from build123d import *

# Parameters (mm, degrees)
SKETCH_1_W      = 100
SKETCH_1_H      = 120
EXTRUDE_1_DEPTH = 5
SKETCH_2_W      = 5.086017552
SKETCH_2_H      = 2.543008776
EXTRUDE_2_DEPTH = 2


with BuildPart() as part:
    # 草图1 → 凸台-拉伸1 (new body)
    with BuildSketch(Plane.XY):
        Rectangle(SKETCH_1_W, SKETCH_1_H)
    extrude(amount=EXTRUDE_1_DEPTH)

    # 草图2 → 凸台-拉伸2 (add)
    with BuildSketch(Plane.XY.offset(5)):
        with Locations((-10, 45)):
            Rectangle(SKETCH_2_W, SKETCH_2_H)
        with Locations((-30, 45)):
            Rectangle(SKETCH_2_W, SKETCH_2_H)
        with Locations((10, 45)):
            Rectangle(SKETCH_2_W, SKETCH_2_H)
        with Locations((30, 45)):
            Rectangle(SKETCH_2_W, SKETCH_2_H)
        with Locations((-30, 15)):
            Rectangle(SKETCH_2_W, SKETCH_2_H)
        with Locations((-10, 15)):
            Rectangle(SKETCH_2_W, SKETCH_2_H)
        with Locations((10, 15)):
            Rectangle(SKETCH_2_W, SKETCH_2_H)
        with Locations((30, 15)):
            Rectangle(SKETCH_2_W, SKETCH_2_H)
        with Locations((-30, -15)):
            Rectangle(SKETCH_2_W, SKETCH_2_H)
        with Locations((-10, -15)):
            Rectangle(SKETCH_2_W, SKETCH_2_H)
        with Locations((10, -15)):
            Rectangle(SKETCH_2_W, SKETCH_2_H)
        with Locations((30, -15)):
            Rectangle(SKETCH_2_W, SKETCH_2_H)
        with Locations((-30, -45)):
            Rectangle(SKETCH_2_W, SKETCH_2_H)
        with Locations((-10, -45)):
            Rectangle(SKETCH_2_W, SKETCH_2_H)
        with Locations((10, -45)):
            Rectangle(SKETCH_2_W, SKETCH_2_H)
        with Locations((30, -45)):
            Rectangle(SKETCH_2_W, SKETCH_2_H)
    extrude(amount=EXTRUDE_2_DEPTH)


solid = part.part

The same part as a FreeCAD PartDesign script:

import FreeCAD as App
import Part
import Sketcher
Q = App.Units.Quantity

doc = App.newDocument("Part")
body = doc.addObject("PartDesign::Body", "Body")

sketch1 = doc.addObject("Sketcher::SketchObject", "Sketch")
body.addObject(sketch1)
sketch1.AttachmentSupport = (doc.XY_Plane, [""])
sketch1.MapMode = "FlatFace"
sketch1.addGeometry([
    Part.LineSegment(App.Vector(-50, 60, 0), App.Vector(-50, -60, 0)),
    Part.LineSegment(App.Vector(-50, -60, 0), App.Vector(50, -60, 0)),
    Part.LineSegment(App.Vector(50, -60, 0), App.Vector(50, 60, 0)),
    Part.LineSegment(App.Vector(50, 60, 0), App.Vector(-50, 60, 0)),
], False)
sketch1.addConstraint([
    Sketcher.Constraint("Coincident", 0, 2, 1, 1),
    Sketcher.Constraint("Coincident", 1, 2, 2, 1),
    Sketcher.Constraint("Coincident", 2, 2, 3, 1),
    Sketcher.Constraint("Coincident", 3, 2, 0, 1),
    Sketcher.Constraint("Vertical", 0),
    Sketcher.Constraint("Horizontal", 1),
    Sketcher.Constraint("Vertical", 2),
    Sketcher.Constraint("Horizontal", 3),
    Sketcher.Constraint("Symmetric", 0, 2, 2, 2, -1, 1),
    Sketcher.Constraint("DistanceX", 1, 1, 1, 2, Q("100 mm")),
    Sketcher.Constraint("DistanceY", 0, 2, 0, 1, Q("120 mm")),
])
pad1 = doc.addObject("PartDesign::Pad", "Pad")
body.addObject(pad1)
pad1.Profile = sketch1
pad1.Length = 5

sketch2 = doc.addObject("Sketcher::SketchObject", "Sketch001")
body.addObject(sketch2)
sketch2.AttachmentSupport = (doc.XY_Plane, [""])
sketch2.MapMode = "FlatFace"
sketch2.AttachmentOffset = App.Placement(App.Vector(0, 0, 5), App.Rotation())
sketch2.addGeometry([
    Part.LineSegment(App.Vector(-12.5, 46.3, 0), App.Vector(-12.5, 43.7, 0)),
    Part.LineSegment(App.Vector(-12.5, 43.7, 0), App.Vector(-7.5, 43.7, 0)),
    Part.LineSegment(App.Vector(-7.5, 43.7, 0), App.Vector(-7.5, 46.3, 0)),
    Part.LineSegment(App.Vector(-7.5, 46.3, 0), App.Vector(-12.5, 46.3, 0)),
    Part.LineSegment(App.Vector(-32.5, 46.3, 0), App.Vector(-32.5, 43.7, 0)),
    Part.LineSegment(App.Vector(-32.5, 43.7, 0), App.Vector(-27.5, 43.7, 0)),
    Part.LineSegment(App.Vector(-27.5, 43.7, 0), App.Vector(-27.5, 46.3, 0)),
    Part.LineSegment(App.Vector(-27.5, 46.3, 0), App.Vector(-32.5, 46.3, 0)),
    Part.LineSegment(App.Vector(7.5, 46.3, 0), App.Vector(7.5, 43.7, 0)),
    Part.LineSegment(App.Vector(7.5, 43.7, 0), App.Vector(12.5, 43.7, 0)),
    Part.LineSegment(App.Vector(12.5, 43.7, 0), App.Vector(12.5, 46.3, 0)),
    Part.LineSegment(App.Vector(12.5, 46.3, 0), App.Vector(7.5, 46.3, 0)),
    Part.LineSegment(App.Vector(27.5, 46.3, 0), App.Vector(27.5, 43.7, 0)),
    Part.LineSegment(App.Vector(27.5, 43.7, 0), App.Vector(32.5, 43.7, 0)),
    Part.LineSegment(App.Vector(32.5, 43.7, 0), App.Vector(32.5, 46.3, 0)),
    Part.LineSegment(App.Vector(32.5, 46.3, 0), App.Vector(27.5, 46.3, 0)),
    Part.LineSegment(App.Vector(-32.5, 16.3, 0), App.Vector(-32.5, 13.7, 0)),
    Part.LineSegment(App.Vector(-32.5, 13.7, 0), App.Vector(-27.5, 13.7, 0)),
    Part.LineSegment(App.Vector(-27.5, 13.7, 0), App.Vector(-27.5, 16.3, 0)),
    Part.LineSegment(App.Vector(-27.5, 16.3, 0), App.Vector(-32.5, 16.3, 0)),
    Part.LineSegment(App.Vector(-12.5, 16.3, 0), App.Vector(-12.5, 13.7, 0)),
    Part.LineSegment(App.Vector(-12.5, 13.7, 0), App.Vector(-7.5, 13.7, 0)),
    Part.LineSegment(App.Vector(-7.5, 13.7, 0), App.Vector(-7.5, 16.3, 0)),
    Part.LineSegment(App.Vector(-7.5, 16.3, 0), App.Vector(-12.5, 16.3, 0)),
    Part.LineSegment(App.Vector(7.5, 16.3, 0), App.Vector(7.5, 13.7, 0)),
    Part.LineSegment(App.Vector(7.5, 13.7, 0), App.Vector(12.5, 13.7, 0)),
    Part.LineSegment(App.Vector(12.5, 13.7, 0), App.Vector(12.5, 16.3, 0)),
    Part.LineSegment(App.Vector(12.5, 16.3, 0), App.Vector(7.5, 16.3, 0)),
    Part.LineSegment(App.Vector(27.5, 16.3, 0), App.Vector(27.5, 13.7, 0)),
    Part.LineSegment(App.Vector(27.5, 13.7, 0), App.Vector(32.5, 13.7, 0)),
    Part.LineSegment(App.Vector(32.5, 13.7, 0), App.Vector(32.5, 16.3, 0)),
    Part.LineSegment(App.Vector(32.5, 16.3, 0), App.Vector(27.5, 16.3, 0)),
    Part.LineSegment(App.Vector(-32.5, -13.7, 0), App.Vector(-32.5, -16.3, 0)),
    Part.LineSegment(App.Vector(-32.5, -16.3, 0), App.Vector(-27.5, -16.3, 0)),
    Part.LineSegment(App.Vector(-27.5, -16.3, 0), App.Vector(-27.5, -13.7, 0)),
    Part.LineSegment(App.Vector(-27.5, -13.7, 0), App.Vector(-32.5, -13.7, 0)),
    Part.LineSegment(App.Vector(-12.5, -13.7, 0), App.Vector(-12.5, -16.3, 0)),
    Part.LineSegment(App.Vector(-12.5, -16.3, 0), App.Vector(-7.5, -16.3, 0)),
    Part.LineSegment(App.Vector(-7.5, -16.3, 0), App.Vector(-7.5, -13.7, 0)),
    Part.LineSegment(App.Vector(-7.5, -13.7, 0), App.Vector(-12.5, -13.7, 0)),
    Part.LineSegment(App.Vector(7.5, -13.7, 0), App.Vector(7.5, -16.3, 0)),
    Part.LineSegment(App.Vector(7.5, -16.3, 0), App.Vector(12.5, -16.3, 0)),
    Part.LineSegment(App.Vector(12.5, -16.3, 0), App.Vector(12.5, -13.7, 0)),
    Part.LineSegment(App.Vector(12.5, -13.7, 0), App.Vector(7.5, -13.7, 0)),
    Part.LineSegment(App.Vector(27.5, -13.7, 0), App.Vector(27.5, -16.3, 0)),
    Part.LineSegment(App.Vector(27.5, -16.3, 0), App.Vector(32.5, -16.3, 0)),
    Part.LineSegment(App.Vector(32.5, -16.3, 0), App.Vector(32.5, -13.7, 0)),
    Part.LineSegment(App.Vector(32.5, -13.7, 0), App.Vector(27.5, -13.7, 0)),
    Part.LineSegment(App.Vector(-32.5, -43.7, 0), App.Vector(-32.5, -46.3, 0)),
    Part.LineSegment(App.Vector(-32.5, -46.3, 0), App.Vector(-27.5, -46.3, 0)),
    Part.LineSegment(App.Vector(-27.5, -46.3, 0), App.Vector(-27.5, -43.7, 0)),
    Part.LineSegment(App.Vector(-27.5, -43.7, 0), App.Vector(-32.5, -43.7, 0)),
    Part.LineSegment(App.Vector(-12.5, -43.7, 0), App.Vector(-12.5, -46.3, 0)),
    Part.LineSegment(App.Vector(-12.5, -46.3, 0), App.Vector(-7.5, -46.3, 0)),
    Part.LineSegment(App.Vector(-7.5, -46.3, 0), App.Vector(-7.5, -43.7, 0)),
    Part.LineSegment(App.Vector(-7.5, -43.7, 0), App.Vector(-12.5, -43.7, 0)),
    Part.LineSegment(App.Vector(7.5, -43.7, 0), App.Vector(7.5, -46.3, 0)),
    Part.LineSegment(App.Vector(7.5, -46.3, 0), App.Vector(12.5, -46.3, 0)),
    Part.LineSegment(App.Vector(12.5, -46.3, 0), App.Vector(12.5, -43.7, 0)),
    Part.LineSegment(App.Vector(12.5, -43.7, 0), App.Vector(7.5, -43.7, 0)),
    Part.LineSegment(App.Vector(27.5, -43.7, 0), App.Vector(27.5, -46.3, 0)),
    Part.LineSegment(App.Vector(27.5, -46.3, 0), App.Vector(32.5, -46.3, 0)),
    Part.LineSegment(App.Vector(32.5, -46.3, 0), App.Vector(32.5, -43.7, 0)),
    Part.LineSegment(App.Vector(32.5, -43.7, 0), App.Vector(27.5, -43.7, 0)),
], False)
sketch2.addConstraint([
    Sketcher.Constraint("Coincident", 0, 2, 1, 1),
    Sketcher.Constraint("Coincident", 1, 2, 2, 1),
    Sketcher.Constraint("Coincident", 2, 2, 3, 1),
    Sketcher.Constraint("Coincident", 3, 2, 0, 1),
    Sketcher.Constraint("Coincident", 4, 2, 5, 1),
    Sketcher.Constraint("Coincident", 5, 2, 6, 1),
    Sketcher.Constraint("Coincident", 6, 2, 7, 1),
    Sketcher.Constraint("Coincident", 7, 2, 4, 1),
    Sketcher.Constraint("Coincident", 8, 2, 9, 1),
    Sketcher.Constraint("Coincident", 9, 2, 10, 1),
    Sketcher.Constraint("Coincident", 10, 2, 11, 1),
    Sketcher.Constraint("Coincident", 11, 2, 8, 1),
    Sketcher.Constraint("Coincident", 12, 2, 13, 1),
    Sketcher.Constraint("Coincident", 13, 2, 14, 1),
    Sketcher.Constraint("Coincident", 14, 2, 15, 1),
    Sketcher.Constraint("Coincident", 15, 2, 12, 1),
    Sketcher.Constraint("Coincident", 16, 2, 17, 1),
    Sketcher.Constraint("Coincident", 17, 2, 18, 1),
    Sketcher.Constraint("Coincident", 18, 2, 19, 1),
    Sketcher.Constraint("Coincident", 19, 2, 16, 1),
    Sketcher.Constraint("Coincident", 20, 2, 21, 1),
    Sketcher.Constraint("Coincident", 21, 2, 22, 1),
    Sketcher.Constraint("Coincident", 22, 2, 23, 1),
    Sketcher.Constraint("Coincident", 23, 2, 20, 1),
    Sketcher.Constraint("Coincident", 24, 2, 25, 1),
    Sketcher.Constraint("Coincident", 25, 2, 26, 1),
    Sketcher.Constraint("Coincident", 26, 2, 27, 1),
    Sketcher.Constraint("Coincident", 27, 2, 24, 1),
    Sketcher.Constraint("Coincident", 28, 2, 29, 1),
    Sketcher.Constraint("Coincident", 29, 2, 30, 1),
    Sketcher.Constraint("Coincident", 30, 2, 31, 1),
    Sketcher.Constraint("Coincident", 31, 2, 28, 1),
    Sketcher.Constraint("Coincident", 32, 2, 33, 1),
    Sketcher.Constraint("Coincident", 33, 2, 34, 1),
    Sketcher.Constraint("Coincident", 34, 2, 35, 1),
    Sketcher.Constraint("Coincident", 35, 2, 32, 1),
    Sketcher.Constraint("Coincident", 36, 2, 37, 1),
    Sketcher.Constraint("Coincident", 37, 2, 38, 1),
    Sketcher.Constraint("Coincident", 38, 2, 39, 1),
    Sketcher.Constraint("Coincident", 39, 2, 36, 1),
    Sketcher.Constraint("Coincident", 40, 2, 41, 1),
    Sketcher.Constraint("Coincident", 41, 2, 42, 1),
    Sketcher.Constraint("Coincident", 42, 2, 43, 1),
    Sketcher.Constraint("Coincident", 43, 2, 40, 1),
    Sketcher.Constraint("Coincident", 44, 2, 45, 1),
    Sketcher.Constraint("Coincident", 45, 2, 46, 1),
    Sketcher.Constraint("Coincident", 46, 2, 47, 1),
    Sketcher.Constraint("Coincident", 47, 2, 44, 1),
    Sketcher.Constraint("Coincident", 48, 2, 49, 1),
    Sketcher.Constraint("Coincident", 49, 2, 50, 1),
    Sketcher.Constraint("Coincident", 50, 2, 51, 1),
    Sketcher.Constraint("Coincident", 51, 2, 48, 1),
    Sketcher.Constraint("Coincident", 52, 2, 53, 1),
    Sketcher.Constraint("Coincident", 53, 2, 54, 1),
    Sketcher.Constraint("Coincident", 54, 2, 55, 1),
    Sketcher.Constraint("Coincident", 55, 2, 52, 1),
    Sketcher.Constraint("Coincident", 56, 2, 57, 1),
    Sketcher.Constraint("Coincident", 57, 2, 58, 1),
    Sketcher.Constraint("Coincident", 58, 2, 59, 1),
    Sketcher.Constraint("Coincident", 59, 2, 56, 1),
    Sketcher.Constraint("Coincident", 60, 2, 61, 1),
    Sketcher.Constraint("Coincident", 61, 2, 62, 1),
    Sketcher.Constraint("Coincident", 62, 2, 63, 1),
    Sketcher.Constraint("Coincident", 63, 2, 60, 1),
    Sketcher.Constraint("Vertical", 0),
    Sketcher.Constraint("Horizontal", 1),
    Sketcher.Constraint("Vertical", 2),
    Sketcher.Constraint("Horizontal", 3),
    Sketcher.Constraint("Vertical", 4),
    Sketcher.Constraint("Horizontal", 5),
    Sketcher.Constraint("Vertical", 6),
    Sketcher.Constraint("Horizontal", 7),
    Sketcher.Constraint("Vertical", 8),
    Sketcher.Constraint("Horizontal", 9),
    Sketcher.Constraint("Vertical", 10),
    Sketcher.Constraint("Horizontal", 11),
    Sketcher.Constraint("Vertical", 12),
    Sketcher.Constraint("Horizontal", 13),
    Sketcher.Constraint("Vertical", 14),
    Sketcher.Constraint("Horizontal", 15),
    Sketcher.Constraint("Vertical", 16),
    Sketcher.Constraint("Horizontal", 17),
    Sketcher.Constraint("Vertical", 18),
    Sketcher.Constraint("Horizontal", 19),
    Sketcher.Constraint("Vertical", 20),
    Sketcher.Constraint("Horizontal", 21),
    Sketcher.Constraint("Vertical", 22),
    Sketcher.Constraint("Horizontal", 23),
    Sketcher.Constraint("Vertical", 24),
    Sketcher.Constraint("Horizontal", 25),
    Sketcher.Constraint("Vertical", 26),
    Sketcher.Constraint("Horizontal", 27),
    Sketcher.Constraint("Vertical", 28),
    Sketcher.Constraint("Horizontal", 29),
    Sketcher.Constraint("Vertical", 30),
    Sketcher.Constraint("Horizontal", 31),
    Sketcher.Constraint("Vertical", 32),
    Sketcher.Constraint("Horizontal", 33),
    Sketcher.Constraint("Vertical", 34),
    Sketcher.Constraint("Horizontal", 35),
    Sketcher.Constraint("Vertical", 36),
    Sketcher.Constraint("Horizontal", 37),
    Sketcher.Constraint("Vertical", 38),
    Sketcher.Constraint("Horizontal", 39),
    Sketcher.Constraint("Vertical", 40),
    Sketcher.Constraint("Horizontal", 41),
    Sketcher.Constraint("Vertical", 42),
    Sketcher.Constraint("Horizontal", 43),
    Sketcher.Constraint("Vertical", 44),
    Sketcher.Constraint("Horizontal", 45),
    Sketcher.Constraint("Vertical", 46),
    Sketcher.Constraint("Horizontal", 47),
    Sketcher.Constraint("Vertical", 48),
    Sketcher.Constraint("Horizontal", 49),
    Sketcher.Constraint("Vertical", 50),
    Sketcher.Constraint("Horizontal", 51),
    Sketcher.Constraint("Vertical", 52),
    Sketcher.Constraint("Horizontal", 53),
    Sketcher.Constraint("Vertical", 54),
    Sketcher.Constraint("Horizontal", 55),
    Sketcher.Constraint("Vertical", 56),
    Sketcher.Constraint("Horizontal", 57),
    Sketcher.Constraint("Vertical", 58),
    Sketcher.Constraint("Horizontal", 59),
    Sketcher.Constraint("Vertical", 60),
    Sketcher.Constraint("Horizontal", 61),
    Sketcher.Constraint("Vertical", 62),
    Sketcher.Constraint("Horizontal", 63),
    Sketcher.Constraint("Symmetric", 30, 2, 32, 2, -1, 1),
    Sketcher.Constraint("Symmetric", 28, 2, 34, 2, -1, 1),
    Sketcher.Constraint("Symmetric", 26, 2, 36, 2, -1, 1),
    Sketcher.Constraint("Symmetric", 24, 2, 38, 2, -1, 1),
    Sketcher.Constraint("Symmetric", 22, 2, 40, 2, -1, 1),
    Sketcher.Constraint("Symmetric", 20, 2, 42, 2, -1, 1),
    Sketcher.Constraint("Symmetric", 18, 2, 44, 2, -1, 1),
    Sketcher.Constraint("Symmetric", 16, 2, 46, 2, -1, 1),
    Sketcher.Constraint("Symmetric", 14, 2, 48, 2, -1, 1),
    Sketcher.Constraint("Symmetric", 12, 2, 50, 2, -1, 1),
    Sketcher.Constraint("Symmetric", 10, 2, 52, 2, -1, 1),
    Sketcher.Constraint("Symmetric", 8, 2, 54, 2, -1, 1),
    Sketcher.Constraint("Symmetric", 2, 2, 56, 2, -1, 1),
    Sketcher.Constraint("Symmetric", 0, 2, 58, 2, -1, 1),
    Sketcher.Constraint("Symmetric", 6, 2, 60, 2, -1, 1),
    Sketcher.Constraint("Symmetric", 4, 2, 62, 2, -1, 1),
    Sketcher.Constraint("Symmetric", 1, 2, 8, 2, -2),
    Sketcher.Constraint("Symmetric", 3, 2, 10, 2, -2),
    Sketcher.Constraint("Symmetric", 5, 2, 12, 2, -2),
    Sketcher.Constraint("Symmetric", 7, 2, 14, 2, -2),
    Sketcher.Constraint("Symmetric", 21, 2, 24, 2, -2),
    Sketcher.Constraint("Symmetric", 23, 2, 26, 2, -2),
    Sketcher.Constraint("Symmetric", 17, 2, 28, 2, -2),
    Sketcher.Constraint("Symmetric", 19, 2, 30, 2, -2),
    Sketcher.Constraint("Horizontal", 1, 2, 4, 2),
    Sketcher.Constraint("Horizontal", 3, 2, 6, 2),
    Sketcher.Constraint("Horizontal", 17, 2, 20, 2),
    Sketcher.Constraint("Horizontal", 19, 2, 22, 2),
    Sketcher.Constraint("Vertical", 7, 2, 16, 2),
    Sketcher.Constraint("Vertical", 6, 2, 17, 2),
    Sketcher.Constraint("Vertical", 3, 2, 20, 2),
    Sketcher.Constraint("Vertical", 2, 2, 21, 2),
    Sketcher.Constraint("Equal", 3, 5),
    Sketcher.Constraint("Equal", 14, 16),
    Sketcher.Constraint("DistanceY", 0, 2, 0, 1, Q("2.543009 mm")),
    Sketcher.Constraint("DistanceX", 1, 1, 1, 2, Q("5.086018 mm")),
    Sketcher.Constraint("DistanceX", 0, 2, -1, 1, Q("12.543009 mm")),
    Sketcher.Constraint("DistanceX", 4, 2, -1, 1, Q("32.543009 mm")),
    Sketcher.Constraint("DistanceY", -1, 1, 0, 2, Q("43.728496 mm")),
    Sketcher.Constraint("DistanceY", -1, 1, 16, 2, Q("13.728496 mm")),
])
pad2 = doc.addObject("PartDesign::Pad", "Pad001")
body.addObject(pad2)
pad2.Profile = sketch2
pad2.Length = 2

doc.recompute()
